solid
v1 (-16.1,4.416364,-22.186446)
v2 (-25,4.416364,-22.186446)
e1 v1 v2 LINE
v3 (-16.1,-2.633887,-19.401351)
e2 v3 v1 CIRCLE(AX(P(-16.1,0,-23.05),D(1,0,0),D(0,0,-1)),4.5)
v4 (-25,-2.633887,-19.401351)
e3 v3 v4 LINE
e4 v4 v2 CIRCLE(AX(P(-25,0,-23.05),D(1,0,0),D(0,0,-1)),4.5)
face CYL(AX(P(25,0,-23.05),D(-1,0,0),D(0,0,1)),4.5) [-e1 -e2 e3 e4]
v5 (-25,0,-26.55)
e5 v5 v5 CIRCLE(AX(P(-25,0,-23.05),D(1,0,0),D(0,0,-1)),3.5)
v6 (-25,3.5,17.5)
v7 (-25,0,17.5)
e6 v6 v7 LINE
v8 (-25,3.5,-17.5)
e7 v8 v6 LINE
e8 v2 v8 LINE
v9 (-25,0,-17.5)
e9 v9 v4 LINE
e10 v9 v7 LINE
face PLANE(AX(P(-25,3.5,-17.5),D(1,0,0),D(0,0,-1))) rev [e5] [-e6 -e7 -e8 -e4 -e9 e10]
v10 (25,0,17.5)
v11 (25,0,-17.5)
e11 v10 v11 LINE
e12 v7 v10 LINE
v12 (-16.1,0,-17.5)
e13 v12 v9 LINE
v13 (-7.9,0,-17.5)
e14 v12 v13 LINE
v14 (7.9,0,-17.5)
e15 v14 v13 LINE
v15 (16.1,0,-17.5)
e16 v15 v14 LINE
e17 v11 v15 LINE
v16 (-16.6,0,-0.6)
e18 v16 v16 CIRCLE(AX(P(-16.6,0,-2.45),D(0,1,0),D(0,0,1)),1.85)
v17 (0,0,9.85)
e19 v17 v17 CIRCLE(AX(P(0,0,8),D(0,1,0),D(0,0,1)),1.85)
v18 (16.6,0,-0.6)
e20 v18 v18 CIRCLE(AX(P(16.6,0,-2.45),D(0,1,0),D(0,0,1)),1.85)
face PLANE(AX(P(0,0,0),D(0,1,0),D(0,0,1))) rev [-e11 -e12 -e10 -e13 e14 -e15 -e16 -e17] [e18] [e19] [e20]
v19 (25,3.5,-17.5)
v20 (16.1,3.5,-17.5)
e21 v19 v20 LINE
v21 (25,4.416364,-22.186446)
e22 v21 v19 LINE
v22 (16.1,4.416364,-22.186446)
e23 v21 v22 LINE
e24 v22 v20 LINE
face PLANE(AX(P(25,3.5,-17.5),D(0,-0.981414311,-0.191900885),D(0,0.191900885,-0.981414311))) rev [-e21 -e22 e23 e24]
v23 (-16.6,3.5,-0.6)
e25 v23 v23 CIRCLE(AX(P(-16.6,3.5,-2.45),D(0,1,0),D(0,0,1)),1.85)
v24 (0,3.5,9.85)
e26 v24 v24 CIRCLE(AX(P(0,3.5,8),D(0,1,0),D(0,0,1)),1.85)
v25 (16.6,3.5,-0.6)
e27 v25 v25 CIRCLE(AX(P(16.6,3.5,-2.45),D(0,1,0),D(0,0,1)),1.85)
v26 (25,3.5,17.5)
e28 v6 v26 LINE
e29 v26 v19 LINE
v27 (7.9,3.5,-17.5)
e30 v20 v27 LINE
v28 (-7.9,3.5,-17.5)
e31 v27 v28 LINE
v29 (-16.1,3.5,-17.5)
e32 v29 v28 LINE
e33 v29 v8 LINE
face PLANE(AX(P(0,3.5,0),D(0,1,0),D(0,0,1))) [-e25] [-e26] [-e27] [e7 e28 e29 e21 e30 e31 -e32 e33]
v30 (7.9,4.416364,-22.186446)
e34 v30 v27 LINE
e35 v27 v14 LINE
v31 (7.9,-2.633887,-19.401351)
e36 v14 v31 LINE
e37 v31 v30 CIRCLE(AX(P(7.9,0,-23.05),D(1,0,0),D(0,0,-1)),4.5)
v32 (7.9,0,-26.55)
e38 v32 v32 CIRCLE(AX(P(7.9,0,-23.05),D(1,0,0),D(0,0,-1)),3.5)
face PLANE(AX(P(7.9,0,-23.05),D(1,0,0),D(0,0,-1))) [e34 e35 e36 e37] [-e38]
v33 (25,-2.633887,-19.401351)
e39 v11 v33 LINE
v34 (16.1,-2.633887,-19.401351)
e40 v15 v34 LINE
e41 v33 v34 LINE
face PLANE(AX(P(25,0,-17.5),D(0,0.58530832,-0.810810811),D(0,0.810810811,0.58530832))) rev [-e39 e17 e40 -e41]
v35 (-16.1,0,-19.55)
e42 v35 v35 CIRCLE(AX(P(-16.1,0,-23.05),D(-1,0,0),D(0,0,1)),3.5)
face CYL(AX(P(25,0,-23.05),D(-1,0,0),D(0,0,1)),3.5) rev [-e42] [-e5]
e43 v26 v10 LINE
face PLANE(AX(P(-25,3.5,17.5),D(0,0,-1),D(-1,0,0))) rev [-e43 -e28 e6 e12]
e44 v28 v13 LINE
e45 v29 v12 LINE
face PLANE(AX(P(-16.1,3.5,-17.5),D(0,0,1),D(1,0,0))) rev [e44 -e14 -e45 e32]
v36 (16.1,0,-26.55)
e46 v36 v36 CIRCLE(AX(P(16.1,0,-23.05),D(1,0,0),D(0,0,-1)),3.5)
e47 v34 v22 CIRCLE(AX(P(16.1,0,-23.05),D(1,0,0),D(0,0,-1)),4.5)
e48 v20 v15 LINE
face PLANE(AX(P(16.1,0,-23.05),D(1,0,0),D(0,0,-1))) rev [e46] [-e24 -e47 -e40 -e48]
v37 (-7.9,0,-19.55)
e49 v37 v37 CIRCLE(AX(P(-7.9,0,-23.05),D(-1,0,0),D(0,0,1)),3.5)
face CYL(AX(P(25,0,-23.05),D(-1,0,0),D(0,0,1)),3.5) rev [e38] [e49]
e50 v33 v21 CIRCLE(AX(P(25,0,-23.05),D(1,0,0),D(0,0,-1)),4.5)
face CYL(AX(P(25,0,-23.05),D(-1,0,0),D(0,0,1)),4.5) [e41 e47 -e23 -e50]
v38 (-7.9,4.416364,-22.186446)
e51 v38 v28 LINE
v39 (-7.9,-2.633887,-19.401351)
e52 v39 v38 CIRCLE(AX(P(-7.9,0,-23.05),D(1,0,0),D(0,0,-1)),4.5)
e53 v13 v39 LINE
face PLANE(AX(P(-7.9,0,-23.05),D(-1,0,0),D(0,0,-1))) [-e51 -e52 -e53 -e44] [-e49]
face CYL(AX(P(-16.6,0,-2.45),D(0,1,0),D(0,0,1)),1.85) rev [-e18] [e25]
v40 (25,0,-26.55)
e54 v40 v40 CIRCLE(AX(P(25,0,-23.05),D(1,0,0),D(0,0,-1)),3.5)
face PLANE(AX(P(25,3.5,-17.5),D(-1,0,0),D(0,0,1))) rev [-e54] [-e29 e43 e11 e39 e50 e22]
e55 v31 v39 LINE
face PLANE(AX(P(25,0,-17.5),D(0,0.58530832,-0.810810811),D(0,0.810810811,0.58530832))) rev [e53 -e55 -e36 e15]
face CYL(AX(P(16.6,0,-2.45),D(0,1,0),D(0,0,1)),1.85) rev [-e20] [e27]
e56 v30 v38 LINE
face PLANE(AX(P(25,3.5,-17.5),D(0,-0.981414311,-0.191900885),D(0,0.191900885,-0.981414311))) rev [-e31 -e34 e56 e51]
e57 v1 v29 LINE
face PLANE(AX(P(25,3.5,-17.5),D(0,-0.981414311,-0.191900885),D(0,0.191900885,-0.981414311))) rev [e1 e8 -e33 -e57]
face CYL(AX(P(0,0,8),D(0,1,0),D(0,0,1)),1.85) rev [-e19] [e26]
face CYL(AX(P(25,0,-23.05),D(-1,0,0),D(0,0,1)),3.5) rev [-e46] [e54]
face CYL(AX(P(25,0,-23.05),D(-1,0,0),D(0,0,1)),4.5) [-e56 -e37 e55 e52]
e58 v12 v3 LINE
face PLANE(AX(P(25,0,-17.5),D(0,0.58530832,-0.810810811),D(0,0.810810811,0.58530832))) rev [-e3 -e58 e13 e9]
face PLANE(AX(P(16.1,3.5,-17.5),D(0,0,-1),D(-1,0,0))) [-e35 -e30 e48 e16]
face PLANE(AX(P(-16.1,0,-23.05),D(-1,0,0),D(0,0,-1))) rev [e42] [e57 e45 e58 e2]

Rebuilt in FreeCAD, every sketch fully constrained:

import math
import FreeCAD as App
import Part
import Sketcher
from FreeCAD import Vector
Q = App.Units.Quantity


def add_polygon(sketch, points):
    """Adds a closed chain of lines whose ends are joined by coincident constraints."""
    first, n = sketch.GeometryCount, len(points)
    for a, b in zip(points, points[1:] + points[:1]):
        sketch.addGeometry(Part.LineSegment(App.Vector(*a, 0), App.Vector(*b, 0)), False)
    for i in range(n):
        sketch.addConstraint(Sketcher.Constraint("Coincident", first + i, 2, first + (i + 1) % n, 1))

doc = App.newDocument("Part")
params = doc.addObject("Spreadsheet::Sheet", "Params")
for row, (alias, value) in enumerate([
    ("sketch1_width", "50 mm"),
    ("sketch1_height", "35 mm"),
    ("pad1_length", "3.5 mm"),
    ("sketch2_diameter", "3.7 mm"),
    ("sketch3_diameter", "7 mm"),
    ("sketch3_radius", "4.5 mm"),
    ("sketch3_width", "3.5 mm"),
    ("pad2_length", "50 mm"),
    ("sketch4_radius", "4.5 mm"),
    ("sketch4_width", "3.5 mm"),
    ("pocket2_length", "8.2 mm"),
], start=1):
    params.set(f"A{row}", alias)
    params.set(f"B{row}", "=" + value)
    params.setAlias(f"B{row}", alias)

body = doc.addObject("PartDesign::Body", "Body")

sketch1 = body.newObject("Sketcher::SketchObject", "Sketch")
sketch1.AttachmentSupport = (doc.getObject("XZ_Plane"), [""])
sketch1.MapMode = "FlatFace"
add_polygon(sketch1, [(-25, -17.5), (-25, 17.5), (25, 17.5), (25, -17.5)])
sketch1.addConstraint([
    Sketcher.Constraint("Vertical", 0),
    Sketcher.Constraint("Horizontal", 1),
    Sketcher.Constraint("Vertical", 2),
    Sketcher.Constraint("Horizontal", 3),
    Sketcher.Constraint("Symmetric", 0, 2, 2, 2, -1, 1),
    Sketcher.Constraint("DistanceX", 1, 1, 1, 2, Q("50 mm")),
    Sketcher.Constraint("DistanceY", 0, 1, 0, 2, Q("35 mm")),
])
sketch1.setExpression("Constraints[9]", "Params.sketch1_width")
sketch1.setExpression("Constraints[10]", "Params.sketch1_height")
pad1 = body.newObject("PartDesign::Pad", "Pad")
pad1.Profile = sketch1
pad1.setExpression("Length", "Params.pad1_length")
pad1.Reversed = True

sketch2 = body.newObject("Sketcher::SketchObject", "Sketch001")
sketch2.AttachmentSupport = (doc.getObject("XZ_Plane"), [""])
sketch2.MapMode = "FlatFace"
sketch2.AttachmentOffset = App.Placement(Vector(0, 0, -3.5), App.Rotation())
sketch2.addGeometry([
    Part.Circle(Vector(0, 8, 0), Vector(0, 0, 1), 1.85),
    Part.Circle(Vector(16.6, -2.45, 0), Vector(0, 0, 1), 1.85),
    Part.Circle(Vector(-16.6, -2.45, 0), Vector(0, 0, 1), 1.85),
], False)
sketch2.addConstraint([
    Sketcher.Constraint("Equal", 0, 1),
    Sketcher.Constraint("Equal", 1, 2),
    Sketcher.Constraint("Symmetric", 1, 3, 2, 3, -2),
    Sketcher.Constraint("PointOnObject", 0, 3, -2),
    Sketcher.Constraint("Diameter", 0, Q("3.7 mm")),
    Sketcher.Constraint("DistanceY", -1, 1, 0, 3, Q("8 mm")),
    Sketcher.Constraint("DistanceX", -1, 1, 1, 3, Q("16.6 mm")),
    Sketcher.Constraint("DistanceY", 1, 3, -1, 1, Q("2.45 mm")),
])
sketch2.setExpression("Constraints[4]", "Params.sketch2_diameter")
pocket1 = body.newObject("PartDesign::Pocket", "Pocket")
pocket1.Profile = sketch2
pocket1.Type = "ThroughAll"
pocket1.Reversed = True

sketch3 = body.newObject("Sketcher::SketchObject", "Sketch002")
sketch3.AttachmentSupport = (doc.getObject("YZ_Plane"), [""])
sketch3.MapMode = "FlatFace"
sketch3.addGeometry([
    Part.LineSegment(Vector(0, -17.5, 0), Vector(-2.633887, -19.401351, 0)),
    Part.ArcOfCircle(Part.Circle(Vector(0, -23.05, 0), Vector(0, 0, 1), 4.5), math.radians(125.824774), math.radians(371.063738)),
    Part.LineSegment(Vector(4.416364, -22.186446, 0), Vector(3.5, -17.5, 0)),
    Part.LineSegment(Vector(3.5, -17.5, 0), Vector(0, -17.5, 0)),
    Part.Circle(Vector(0, -23.05, 0), Vector(0, 0, 1), 3.5),
], False)
sketch3.addConstraint([
    Sketcher.Constraint("Tangent", 0, 2, 1, 1),
    Sketcher.Constraint("Tangent", 1, 2, 2, 1),
    Sketcher.Constraint("Coincident", 2, 2, 3, 1),
    Sketcher.Constraint("Coincident", 3, 2, 0, 1),
    Sketcher.Constraint("Horizontal", 3),
    Sketcher.Constraint("Coincident", 4, 3, 1, 3),
    Sketcher.Constraint("PointOnObject", 1, 3, -2),
    Sketcher.Constraint("PointOnObject", 3, 2, -2),
    Sketcher.Constraint("Diameter", 4, Q("7 mm")),
    Sketcher.Constraint("Radius", 1, Q("4.5 mm")),
    Sketcher.Constraint("DistanceX", 3, 2, 3, 1, Q("3.5 mm")),
    Sketcher.Constraint("DistanceY", 2, 2, -1, 1, Q("17.5 mm")),
    Sketcher.Constraint("DistanceY", 1, 3, -1, 1, Q("23.05 mm")),
])
sketch3.setExpression("Constraints[8]", "Params.sketch3_diameter")
sketch3.setExpression("Constraints[9]", "Params.sketch3_radius")
sketch3.setExpression("Constraints[10]", "Params.sketch3_width")
pad2 = body.newObject("PartDesign::Pad", "Pad001")
pad2.Profile = sketch3
pad2.setExpression("Length", "Params.pad2_length")
pad2.Midplane = True

sketch4 = body.newObject("Sketcher::SketchObject", "Sketch003")
sketch4.AttachmentSupport = (doc.getObject("YZ_Plane"), [""])
sketch4.MapMode = "FlatFace"
sketch4.AttachmentOffset = App.Placement(Vector(0, 0, 16.1), App.Rotation())
sketch4.addGeometry([
    Part.LineSegment(Vector(3.5, -17.5, 0), Vector(0, -17.5, 0)),
    Part.LineSegment(Vector(0, -17.5, 0), Vector(-2.633887, -19.401351, 0)),
    Part.ArcOfCircle(Part.Circle(Vector(0, -23.05, 0), Vector(0, 0, 1), 4.5), math.radians(125.824774), math.radians(371.063738)),
    Part.LineSegment(Vector(4.416364, -22.186446, 0), Vector(3.5, -17.5, 0)),
], False)
sketch4.addConstraint([
    Sketcher.Constraint("Coincident", 0, 2, 1, 1),
    Sketcher.Constraint("Tangent", 1, 2, 2, 1),
    Sketcher.Constraint("Tangent", 2, 2, 3, 1),
    Sketcher.Constraint("Coincident", 3, 2, 0, 1),
    Sketcher.Constraint("Horizontal", 0),
    Sketcher.Constraint("PointOnObject", 2, 3, -2),
    Sketcher.Constraint("PointOnObject", 0, 2, -2),
    Sketcher.Constraint("Radius", 2, Q("4.5 mm")),
    Sketcher.Constraint("DistanceX", 0, 2, 0, 1, Q("3.5 mm")),
    Sketcher.Constraint("DistanceY", 0, 2, -1, 1, Q("17.5 mm")),
    Sketcher.Constraint("DistanceY", 2, 3, -1, 1, Q("23.05 mm")),
])
sketch4.setExpression("Constraints[7]", "Params.sketch4_radius")
sketch4.setExpression("Constraints[8]", "Params.sketch4_width")
pocket2 = body.newObject("PartDesign::Pocket", "Pocket001")
pocket2.Profile = sketch4
pocket2.setExpression("Length", "Params.pocket2_length")
doc.recompute()

mirrored = body.newObject("PartDesign::Mirrored", "Mirrored")
mirrored.Originals = [pocket2]
mirrored.MirrorPlane = (doc.getObject("YZ_Plane"), [""])
body.Tip = mirrored

doc.recompute()
